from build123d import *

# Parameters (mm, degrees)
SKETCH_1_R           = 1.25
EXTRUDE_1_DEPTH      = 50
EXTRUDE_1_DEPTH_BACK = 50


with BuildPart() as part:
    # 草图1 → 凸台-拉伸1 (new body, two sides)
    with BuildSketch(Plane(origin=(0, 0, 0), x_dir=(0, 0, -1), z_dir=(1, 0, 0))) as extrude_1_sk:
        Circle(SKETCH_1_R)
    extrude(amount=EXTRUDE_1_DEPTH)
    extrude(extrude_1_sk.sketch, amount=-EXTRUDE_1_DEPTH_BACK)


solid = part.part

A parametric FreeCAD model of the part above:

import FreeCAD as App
import Part
import Sketcher
from FreeCAD import Vector
Q = App.Units.Quantity

doc = App.newDocument("Part")
body = doc.addObject("PartDesign::Body", "Body")

sketch1 = body.newObject("Sketcher::SketchObject", "Sketch")
sketch1.AttachmentSupport = (doc.getObject("YZ_Plane"), [""])
sketch1.MapMode = "FlatFace"
sketch1.addGeometry(Part.Circle(Vector(0, 0, 0), Vector(0, 0, 1), 1.25), False)
sketch1.addConstraint([
    Sketcher.Constraint("Coincident", 0, 3, -1, 1),
    Sketcher.Constraint("Diameter", 0, Q("2.5 mm")),
])
pad1 = body.newObject("PartDesign::Pad", "Pad")
pad1.Profile = sketch1
pad1.Type = "TwoLengths"
pad1.Length = 50
pad1.Length2 = 50

doc.recompute()
